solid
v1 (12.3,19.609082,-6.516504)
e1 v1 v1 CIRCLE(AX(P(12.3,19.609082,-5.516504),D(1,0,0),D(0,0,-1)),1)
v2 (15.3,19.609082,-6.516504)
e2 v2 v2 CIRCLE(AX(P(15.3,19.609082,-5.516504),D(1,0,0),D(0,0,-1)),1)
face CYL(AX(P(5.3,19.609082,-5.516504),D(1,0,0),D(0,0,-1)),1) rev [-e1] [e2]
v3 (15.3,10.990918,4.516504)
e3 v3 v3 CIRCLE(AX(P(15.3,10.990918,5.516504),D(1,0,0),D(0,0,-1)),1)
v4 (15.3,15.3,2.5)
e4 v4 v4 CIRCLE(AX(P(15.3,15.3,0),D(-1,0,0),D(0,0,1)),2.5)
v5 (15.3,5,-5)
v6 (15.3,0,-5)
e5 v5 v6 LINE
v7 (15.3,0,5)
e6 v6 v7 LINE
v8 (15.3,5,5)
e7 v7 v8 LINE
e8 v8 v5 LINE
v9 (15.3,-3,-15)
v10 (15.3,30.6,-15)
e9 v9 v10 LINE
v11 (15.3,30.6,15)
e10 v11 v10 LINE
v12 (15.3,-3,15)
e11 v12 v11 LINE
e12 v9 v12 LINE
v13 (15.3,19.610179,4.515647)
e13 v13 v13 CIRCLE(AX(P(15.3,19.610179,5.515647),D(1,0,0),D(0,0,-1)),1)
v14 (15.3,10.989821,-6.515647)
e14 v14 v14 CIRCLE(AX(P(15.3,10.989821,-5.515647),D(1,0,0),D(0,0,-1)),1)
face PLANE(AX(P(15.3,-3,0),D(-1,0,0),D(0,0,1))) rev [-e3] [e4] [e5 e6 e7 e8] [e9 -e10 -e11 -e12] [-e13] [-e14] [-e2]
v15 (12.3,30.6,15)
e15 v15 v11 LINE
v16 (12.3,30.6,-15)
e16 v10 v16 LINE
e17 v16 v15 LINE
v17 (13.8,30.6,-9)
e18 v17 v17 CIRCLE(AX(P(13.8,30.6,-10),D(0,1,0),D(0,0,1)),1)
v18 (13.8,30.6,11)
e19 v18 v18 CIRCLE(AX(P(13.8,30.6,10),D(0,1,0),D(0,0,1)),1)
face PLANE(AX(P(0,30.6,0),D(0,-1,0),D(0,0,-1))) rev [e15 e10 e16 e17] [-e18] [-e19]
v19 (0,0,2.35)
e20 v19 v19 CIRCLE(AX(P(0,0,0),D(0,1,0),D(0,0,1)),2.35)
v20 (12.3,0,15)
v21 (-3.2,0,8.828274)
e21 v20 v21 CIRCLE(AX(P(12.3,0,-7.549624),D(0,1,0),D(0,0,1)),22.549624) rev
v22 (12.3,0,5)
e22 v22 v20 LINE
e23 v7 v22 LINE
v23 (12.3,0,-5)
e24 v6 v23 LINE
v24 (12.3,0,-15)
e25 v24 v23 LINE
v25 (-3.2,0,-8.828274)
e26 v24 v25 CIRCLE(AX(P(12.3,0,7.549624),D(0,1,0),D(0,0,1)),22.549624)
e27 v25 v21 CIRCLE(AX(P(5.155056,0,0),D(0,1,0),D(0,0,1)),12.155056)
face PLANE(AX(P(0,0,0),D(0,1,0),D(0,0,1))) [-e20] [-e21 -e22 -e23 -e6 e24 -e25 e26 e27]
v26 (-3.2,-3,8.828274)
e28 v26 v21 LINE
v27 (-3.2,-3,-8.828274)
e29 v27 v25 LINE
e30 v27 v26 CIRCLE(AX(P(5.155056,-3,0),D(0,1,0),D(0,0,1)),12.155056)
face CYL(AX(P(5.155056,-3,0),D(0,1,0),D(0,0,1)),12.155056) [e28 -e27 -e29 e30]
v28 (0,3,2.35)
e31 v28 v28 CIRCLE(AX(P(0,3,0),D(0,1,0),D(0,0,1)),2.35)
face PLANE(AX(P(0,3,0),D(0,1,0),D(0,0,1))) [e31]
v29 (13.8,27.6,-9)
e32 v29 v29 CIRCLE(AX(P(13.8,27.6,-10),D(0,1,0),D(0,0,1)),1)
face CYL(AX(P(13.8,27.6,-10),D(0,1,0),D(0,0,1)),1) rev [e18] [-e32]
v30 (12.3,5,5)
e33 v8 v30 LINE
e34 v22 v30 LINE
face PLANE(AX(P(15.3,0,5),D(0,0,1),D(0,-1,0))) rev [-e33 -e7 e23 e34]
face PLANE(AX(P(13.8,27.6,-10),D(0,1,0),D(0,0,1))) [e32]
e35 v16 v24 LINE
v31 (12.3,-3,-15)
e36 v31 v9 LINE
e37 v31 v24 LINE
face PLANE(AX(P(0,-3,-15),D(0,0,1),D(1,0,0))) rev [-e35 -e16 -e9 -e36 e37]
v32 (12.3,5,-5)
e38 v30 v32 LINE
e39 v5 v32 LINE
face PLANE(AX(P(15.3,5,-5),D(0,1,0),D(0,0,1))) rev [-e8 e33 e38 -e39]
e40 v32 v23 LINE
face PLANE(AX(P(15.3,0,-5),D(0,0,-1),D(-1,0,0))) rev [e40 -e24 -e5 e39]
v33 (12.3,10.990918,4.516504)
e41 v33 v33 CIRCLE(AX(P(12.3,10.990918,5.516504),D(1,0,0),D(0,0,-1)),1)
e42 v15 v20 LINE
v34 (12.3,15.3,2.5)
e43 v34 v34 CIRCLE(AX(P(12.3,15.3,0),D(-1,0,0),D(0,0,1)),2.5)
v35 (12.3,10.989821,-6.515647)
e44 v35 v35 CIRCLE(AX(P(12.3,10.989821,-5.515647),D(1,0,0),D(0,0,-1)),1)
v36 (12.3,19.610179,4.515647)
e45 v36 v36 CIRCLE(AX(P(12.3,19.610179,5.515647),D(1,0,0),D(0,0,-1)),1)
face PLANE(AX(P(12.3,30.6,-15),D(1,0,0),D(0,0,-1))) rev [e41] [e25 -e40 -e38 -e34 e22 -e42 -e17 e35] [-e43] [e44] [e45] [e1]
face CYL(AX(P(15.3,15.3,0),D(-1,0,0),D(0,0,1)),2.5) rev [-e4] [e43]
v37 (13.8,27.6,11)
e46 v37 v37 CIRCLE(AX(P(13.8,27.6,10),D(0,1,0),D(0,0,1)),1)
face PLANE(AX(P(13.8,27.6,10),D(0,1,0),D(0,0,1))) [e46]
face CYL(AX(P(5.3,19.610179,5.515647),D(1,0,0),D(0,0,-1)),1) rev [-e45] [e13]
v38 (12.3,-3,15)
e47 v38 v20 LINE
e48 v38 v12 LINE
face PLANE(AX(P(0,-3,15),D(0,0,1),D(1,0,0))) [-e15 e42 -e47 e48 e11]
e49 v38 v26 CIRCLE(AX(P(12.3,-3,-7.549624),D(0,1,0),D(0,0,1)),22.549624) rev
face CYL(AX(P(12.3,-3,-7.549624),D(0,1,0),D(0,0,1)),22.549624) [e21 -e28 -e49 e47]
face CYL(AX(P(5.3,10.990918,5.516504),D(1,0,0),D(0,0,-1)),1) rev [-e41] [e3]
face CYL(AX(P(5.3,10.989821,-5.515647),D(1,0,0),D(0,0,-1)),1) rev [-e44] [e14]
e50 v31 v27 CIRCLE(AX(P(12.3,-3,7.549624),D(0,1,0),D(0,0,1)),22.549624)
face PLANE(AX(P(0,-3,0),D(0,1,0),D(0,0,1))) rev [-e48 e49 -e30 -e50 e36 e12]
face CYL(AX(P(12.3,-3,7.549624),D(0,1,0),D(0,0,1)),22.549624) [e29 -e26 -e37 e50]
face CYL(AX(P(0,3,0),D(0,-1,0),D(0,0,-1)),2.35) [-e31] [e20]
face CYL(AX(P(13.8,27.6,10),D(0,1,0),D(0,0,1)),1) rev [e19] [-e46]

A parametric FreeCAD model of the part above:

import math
import FreeCAD as App
import Part
import Sketcher

V = App.Vector
Q = App.Units.Quantity


def add_polygon(sketch, points):
    """Adds a closed chain of lines whose ends are joined by coincident constraints."""
    first, n = sketch.GeometryCount, len(points)
    for a, b in zip(points, points[1:] + points[:1]):
        sketch.addGeometry(Part.LineSegment(App.Vector(*a, 0), App.Vector(*b, 0)), False)
    for i in range(n):
        sketch.addConstraint(Sketcher.Constraint("Coincident", first + i, 2, first + (i + 1) % n, 1))

doc = App.newDocument("Part")
body = doc.addObject("PartDesign::Body", "Body")

# Sketch on XZ plane
sketch1 = body.newObject("Sketcher::SketchObject", "Sketch")
sketch1.AttachmentSupport = (doc.getObject("XZ_Plane"), [""])
sketch1.MapMode = "FlatFace"
sketch1.addGeometry(Part.LineSegment(V(15.3, -15, 0), V(12.3, -15, 0)), False)
sketch1.addGeometry(Part.ArcOfCircle(Part.Circle(V(12.3, 7.5, 0), V(0, 0, 1), 22.5), math.radians(-133), math.radians(-90)), False)
sketch1.addGeometry(Part.ArcOfCircle(Part.Circle(V(5.2, 0, 0), V(0, 0, 1), 12.2), math.radians(133), math.radians(227)), False)
sketch1.addGeometry(Part.ArcOfCircle(Part.Circle(V(12.3, -7.5, 0), V(0, 0, 1), 22.5), math.radians(90), math.radians(133)), False)
sketch1.addGeometry(Part.LineSegment(V(12.3, 15, 0), V(15.3, 15, 0)), False)
sketch1.addGeometry(Part.LineSegment(V(15.3, 15, 0), V(15.3, -15, 0)), False)
sketch1.addConstraint(Sketcher.Constraint("Tangent", 0, 2, 1, 2))
sketch1.addConstraint(Sketcher.Constraint("Tangent", 1, 1, 2, 2))
sketch1.addConstraint(Sketcher.Constraint("Tangent", 2, 1, 3, 2))
sketch1.addConstraint(Sketcher.Constraint("Tangent", 3, 1, 4, 1))
sketch1.addConstraint(Sketcher.Constraint("Coincident", 4, 2, 5, 1))
sketch1.addConstraint(Sketcher.Constraint("Coincident", 5, 2, 0, 1))
sketch1.addConstraint(Sketcher.Constraint("Horizontal", 0))
sketch1.addConstraint(Sketcher.Constraint("Horizontal", 4))
sketch1.addConstraint(Sketcher.Constraint("Vertical", 5))
sketch1.addConstraint(Sketcher.Constraint("Equal", 1, 3))
sketch1.addConstraint(Sketcher.Constraint("Symmetric", 1, 3, 3, 3, -1))
sketch1.addConstraint(Sketcher.Constraint("DistanceX", 0, 2, 0, 1, Q("3 mm")))
sketch1.addConstraint(Sketcher.Constraint("DistanceY", 5, 2, 5, 1, Q("30 mm")))
sketch1.addConstraint(Sketcher.Constraint("DistanceX", -1, 1, 1, 3, Q("12.3 mm")))
sketch1.addConstraint(Sketcher.Constraint("DistanceX", 1, 1, -1, 1, Q("3.2 mm")))
sketch1.addConstraint(Sketcher.Constraint("Radius", 1, Q("22.549624 mm")))
pad1 = body.newObject("PartDesign::Pad", "Pad")
pad1.Profile = sketch1
pad1.Length = 3

# Sketch on XZ plane
sketch2 = body.newObject("Sketcher::SketchObject", "Sketch001")
sketch2.AttachmentSupport = (doc.getObject("XZ_Plane"), [""])
sketch2.MapMode = "FlatFace"
add_polygon(sketch2, [(12.3, -15), (12.3, 15), (15.3, 15), (15.3, -15)])  # lines 0-3
sketch2.addConstraint(Sketcher.Constraint("Vertical", 0))
sketch2.addConstraint(Sketcher.Constraint("Horizontal", 1))
sketch2.addConstraint(Sketcher.Constraint("Vertical", 2))
sketch2.addConstraint(Sketcher.Constraint("Horizontal", 3))
sketch2.addConstraint(Sketcher.Constraint("DistanceX", 1, 1, 1, 2, Q("3 mm")))
sketch2.addConstraint(Sketcher.Constraint("DistanceY", 0, 1, 0, 2, Q("30 mm")))
sketch2.addConstraint(Sketcher.Constraint("DistanceY", -1, 1, 0, 2, Q("15 mm")))
sketch2.addConstraint(Sketcher.Constraint("DistanceX", -1, 1, 0, 2, Q("12.3 mm")))
pad2 = body.newObject("PartDesign::Pad", "Pad001")
pad2.Profile = sketch2
pad2.Length = 30.6
pad2.Reversed = True

# Sketch on XZ plane
sketch3 = body.newObject("Sketcher::SketchObject", "Sketch002")
sketch3.AttachmentSupport = (doc.getObject("XZ_Plane"), [""])
sketch3.MapMode = "FlatFace"
sketch3.AttachmentOffset = App.Placement(V(0, 0, -30.6), App.Rotation())
sketch3.addGeometry(Part.Circle(V(13.8, -10, 0), V(0, 0, 1), 1), False)
sketch3.addGeometry(Part.Circle(V(13.8, 10, 0), V(0, 0, 1), 1), False)
sketch3.addConstraint(Sketcher.Constraint("Equal", 0, 1))
sketch3.addConstraint(Sketcher.Constraint("Symmetric", 0, 3, 1, 3, -1))
sketch3.addConstraint(Sketcher.Constraint("Diameter", 0, Q("2 mm")))
sketch3.addConstraint(Sketcher.Constraint("DistanceY", 0, 3, -1, 1, Q("10 mm")))
sketch3.addConstraint(Sketcher.Constraint("DistanceX", -1, 1, 0, 3, Q("13.8 mm")))
pocket1 = body.newObject("PartDesign::Pocket", "Pocket")
pocket1.Profile = sketch3
pocket1.Length = 3
pocket1.Reversed = True

# Sketch on XZ plane
sketch4 = body.newObject("Sketcher::SketchObject", "Sketch003")
sketch4.AttachmentSupport = (doc.getObject("XZ_Plane"), [""])
sketch4.MapMode = "FlatFace"
sketch4.addGeometry(Part.Circle(V(0, 0, 0), V(0, 0, 1), 2.4), False)
sketch4.addConstraint(Sketcher.Constraint("Coincident", 0, 3, -1, 1))
sketch4.addConstraint(Sketcher.Constraint("Diameter", 0, Q("4.7 mm")))
pad3 = body.newObject("PartDesign::Pad", "Pad002")
pad3.Profile = sketch4
pad3.Length = 3
pad3.Reversed = True

# Sketch on YZ plane
sketch5 = body.newObject("Sketcher::SketchObject", "Sketch004")
sketch5.AttachmentSupport = (doc.getObject("YZ_Plane"), [""])
sketch5.MapMode = "FlatFace"
sketch5.AttachmentOffset = App.Placement(V(0, 0, 12.3), App.Rotation())
sketch5.addGeometry(Part.Circle(V(15.3, 0, 0), V(0, 0, 1), 2.5), False)
sketch5.addConstraint(Sketcher.Constraint("PointOnObject", 0, 3, -1))
sketch5.addConstraint(Sketcher.Constraint("Diameter", 0, Q("5 mm")))
sketch5.addConstraint(Sketcher.Constraint("DistanceX", -1, 1, 0, 3, Q("15.3 mm")))
pocket2 = body.newObject("PartDesign::Pocket", "Pocket001")
pocket2.Profile = sketch5
pocket2.Type = "ThroughAll"
pocket2.Reversed = True

# Sketch on YZ plane
sketch6 = body.newObject("Sketcher::SketchObject", "Sketch005")
sketch6.AttachmentSupport = (doc.getObject("YZ_Plane"), [""])
sketch6.MapMode = "FlatFace"
sketch6.AttachmentOffset = App.Placement(V(0, 0, 15.3), App.Rotation())
sketch6.addGeometry(Part.Circle(V(19.6, -5.5, 0), V(0, 0, 1), 1), False)
sketch6.addGeometry(Part.Circle(V(11, -5.5, 0), V(0, 0, 1), 1), False)
sketch6.addGeometry(Part.Circle(V(19.6, 5.5, 0), V(0, 0, 1), 1), False)
sketch6.addGeometry(Part.Circle(V(11, 5.5, 0), V(0, 0, 1), 1), False)
sketch6.addConstraint(Sketcher.Constraint("Equal", 0, 1))
sketch6.addConstraint(Sketcher.Constraint("Equal", 1, 2))
sketch6.addConstraint(Sketcher.Constraint("Equal", 2, 3))
sketch6.addConstraint(Sketcher.Constraint("Diameter", 0, Q("2 mm")))
sketch6.addConstraint(Sketcher.Constraint("DistanceX", -1, 1, 0, 3, Q("19.609082 mm")))
sketch6.addConstraint(Sketcher.Constraint("DistanceX", -1, 1, 1, 3, Q("10.989821 mm")))
sketch6.addConstraint(Sketcher.Constraint("DistanceX", -1, 1, 2, 3, Q("19.610179 mm")))
sketch6.addConstraint(Sketcher.Constraint("DistanceX", -1, 1, 3, 3, Q("10.990918 mm")))
sketch6.addConstraint(Sketcher.Constraint("DistanceY", 0, 3, 2, 3, Q("11.03215 mm")))
sketch6.addConstraint(Sketcher.Constraint("DistanceY", 1, 3, 3, 3, Q("11.03215 mm")))
sketch6.addConstraint(Sketcher.Constraint("DistanceY", 0, 3, -1, 1, Q("5.516504 mm")))
sketch6.addConstraint(Sketcher.Constraint("DistanceY", 1, 3, -1, 1, Q("5.515647 mm")))
pocket3 = body.newObject("PartDesign::Pocket", "Pocket002")
pocket3.Profile = sketch6
pocket3.Length = 10

# Sketch on YZ plane
sketch7 = body.newObject("Sketcher::SketchObject", "Sketch006")
sketch7.AttachmentSupport = (doc.getObject("YZ_Plane"), [""])
sketch7.MapMode = "FlatFace"
sketch7.AttachmentOffset = App.Placement(V(0, 0, 12.3), App.Rotation())
add_polygon(sketch7, [(5, -5), (0, -5), (0, 5), (5, 5)])  # lines 0-3
sketch7.addConstraint(Sketcher.Constraint("Horizontal", 0))
sketch7.addConstraint(Sketcher.Constraint("Vertical", 1))
sketch7.addConstraint(Sketcher.Constraint("Horizontal", 2))
sketch7.addConstraint(Sketcher.Constraint("Vertical", 3))
sketch7.addConstraint(Sketcher.Constraint("Symmetric", 0, 2, 1, 2, -1, 1))
sketch7.addConstraint(Sketcher.Constraint("DistanceX", 0, 2, 0, 1, Q("5 mm")))
sketch7.addConstraint(Sketcher.Constraint("DistanceY", 1, 1, 1, 2, Q("10 mm")))
pocket4 = body.newObject("PartDesign::Pocket", "Pocket003")
pocket4.Profile = sketch7
pocket4.Type = "ThroughAll"
pocket4.Reversed = True

doc.recompute()
